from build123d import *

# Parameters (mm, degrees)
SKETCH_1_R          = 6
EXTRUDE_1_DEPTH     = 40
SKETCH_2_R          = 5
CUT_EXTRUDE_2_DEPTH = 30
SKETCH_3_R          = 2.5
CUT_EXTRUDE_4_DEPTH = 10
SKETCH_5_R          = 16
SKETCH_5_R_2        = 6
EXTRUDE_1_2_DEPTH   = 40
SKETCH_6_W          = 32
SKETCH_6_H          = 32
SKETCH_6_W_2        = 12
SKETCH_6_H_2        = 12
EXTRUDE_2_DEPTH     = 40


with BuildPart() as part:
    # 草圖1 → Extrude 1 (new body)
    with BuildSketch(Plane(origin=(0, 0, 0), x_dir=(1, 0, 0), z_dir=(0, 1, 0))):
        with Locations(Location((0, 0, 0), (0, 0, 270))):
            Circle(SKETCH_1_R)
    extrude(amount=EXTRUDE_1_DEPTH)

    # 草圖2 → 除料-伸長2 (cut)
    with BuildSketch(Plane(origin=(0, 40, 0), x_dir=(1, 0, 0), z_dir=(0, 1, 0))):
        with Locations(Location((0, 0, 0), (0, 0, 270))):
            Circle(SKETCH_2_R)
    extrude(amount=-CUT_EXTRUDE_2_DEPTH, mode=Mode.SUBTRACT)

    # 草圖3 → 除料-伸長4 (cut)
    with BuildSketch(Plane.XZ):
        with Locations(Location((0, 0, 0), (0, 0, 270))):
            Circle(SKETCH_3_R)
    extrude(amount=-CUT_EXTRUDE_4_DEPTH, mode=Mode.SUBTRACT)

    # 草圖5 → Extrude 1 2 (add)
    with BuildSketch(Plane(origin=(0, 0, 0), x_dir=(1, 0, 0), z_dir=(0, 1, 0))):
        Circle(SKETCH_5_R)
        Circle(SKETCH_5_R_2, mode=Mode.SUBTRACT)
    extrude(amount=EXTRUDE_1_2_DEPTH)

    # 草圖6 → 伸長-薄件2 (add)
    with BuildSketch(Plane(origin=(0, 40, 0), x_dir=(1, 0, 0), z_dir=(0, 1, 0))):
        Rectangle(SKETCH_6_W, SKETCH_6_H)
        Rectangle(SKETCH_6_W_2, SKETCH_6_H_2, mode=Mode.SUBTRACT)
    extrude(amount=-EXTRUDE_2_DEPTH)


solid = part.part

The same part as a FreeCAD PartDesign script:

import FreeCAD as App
import Part
import Sketcher

V = App.Vector


def add_polygon(sketch, points):
    """Adds a closed chain of lines whose ends are joined by coincident constraints."""
    first, n = sketch.GeometryCount, len(points)
    for a, b in zip(points, points[1:] + points[:1]):
        sketch.addGeometry(Part.LineSegment(App.Vector(*a, 0), App.Vector(*b, 0)), False)
    for i in range(n):
        sketch.addConstraint(Sketcher.Constraint("Coincident", first + i, 2, first + (i + 1) % n, 1))

doc = App.newDocument("Part")
params = doc.addObject("Spreadsheet::Sheet", "Params")
for row, (alias, value) in enumerate([
    ("sketch1_diameter", "12 mm"),
    ("pad1_length", "40 mm"),
    ("sketch2_diameter", "10 mm"),
    ("pocket1_length", "30 mm"),
    ("sketch3_diameter", "5 mm"),
    ("pocket2_length", "10 mm"),
    ("sketch4_diameter", "32 mm"),
    ("sketch4_diameter2", "12 mm"),
    ("pad2_length", "40 mm"),
    ("sketch5_width", "32 mm"),
    ("sketch5_width2", "12 mm"),
    ("pad3_length", "40 mm"),
], start=1):
    params.set(f"A{row}", alias)
    params.set(f"B{row}", "=" + value)
    params.setAlias(f"B{row}", alias)

body = doc.addObject("PartDesign::Body", "Body")

# Sketch on XZ plane
sketch1 = doc.addObject("Sketcher::SketchObject", "Sketch")
body.addObject(sketch1)
sketch1.AttachmentSupport = (doc.XZ_Plane, [""])
sketch1.MapMode = "FlatFace"
sketch1.addGeometry(Part.Circle(V(0, 0, 0), V(0, 0, 1), 6), False)
sketch1.addConstraint([
    Sketcher.Constraint("Coincident", 0, 3, -1, 1),
    Sketcher.Constraint("Diameter", 0, 12.0),
])
sketch1.setExpression("Constraints[1]", "Params.sketch1_diameter")
pad1 = doc.addObject("PartDesign::Pad", "Pad")
body.addObject(pad1)
pad1.Profile = sketch1
pad1.setExpression("Length", "Params.pad1_length")
pad1.Reversed = True

# Sketch on XZ plane
sketch2 = doc.addObject("Sketcher::SketchObject", "Sketch001")
body.addObject(sketch2)
sketch2.AttachmentSupport = (doc.XZ_Plane, [""])
sketch2.MapMode = "FlatFace"
sketch2.AttachmentOffset = App.Placement(V(0, 0, -40), App.Rotation())
sketch2.addGeometry(Part.Circle(V(0, 0, 0), V(0, 0, 1), 5), False)
sketch2.addConstraint([
    Sketcher.Constraint("Coincident", 0, 3, -1, 1),
    Sketcher.Constraint("Diameter", 0, 10.0),
])
sketch2.setExpression("Constraints[1]", "Params.sketch2_diameter")
pocket1 = doc.addObject("PartDesign::Pocket", "Pocket")
body.addObject(pocket1)
pocket1.Profile = sketch2
pocket1.setExpression("Length", "Params.pocket1_length")
pocket1.Reversed = True

# Sketch on XZ plane
sketch3 = doc.addObject("Sketcher::SketchObject", "Sketch002")
body.addObject(sketch3)
sketch3.AttachmentSupport = (doc.XZ_Plane, [""])
sketch3.MapMode = "FlatFace"
sketch3.addGeometry(Part.Circle(V(0, 0, 0), V(0, 0, 1), 2.5), False)
sketch3.addConstraint([
    Sketcher.Constraint("Coincident", 0, 3, -1, 1),
    Sketcher.Constraint("Diameter", 0, 5.0),
])
sketch3.setExpression("Constraints[1]", "Params.sketch3_diameter")
pocket2 = doc.addObject("PartDesign::Pocket", "Pocket001")
body.addObject(pocket2)
pocket2.Profile = sketch3
pocket2.setExpression("Length", "Params.pocket2_length")

# Sketch on XZ plane
sketch4 = doc.addObject("Sketcher::SketchObject", "Sketch003")
body.addObject(sketch4)
sketch4.AttachmentSupport = (doc.XZ_Plane, [""])
sketch4.MapMode = "FlatFace"
sketch4.addGeometry([
    Part.Circle(V(0, 0, 0), V(0, 0, 1), 16),
    Part.Circle(V(0, 0, 0), V(0, 0, 1), 6),
], False)
sketch4.addConstraint([
    Sketcher.Constraint("Coincident", 0, 3, -1, 1),
    Sketcher.Constraint("Coincident", 1, 3, -1, 1),
    Sketcher.Constraint("Diameter", 0, 32.0),
    Sketcher.Constraint("Diameter", 1, 12.0),
])
sketch4.setExpression("Constraints[2]", "Params.sketch4_diameter")
sketch4.setExpression("Constraints[3]", "Params.sketch4_diameter2")
pad2 = doc.addObject("PartDesign::Pad", "Pad001")
body.addObject(pad2)
pad2.Profile = sketch4
pad2.setExpression("Length", "Params.pad2_length")
pad2.Reversed = True

# Sketch on XZ plane
sketch5 = doc.addObject("Sketcher::SketchObject", "Sketch004")
body.addObject(sketch5)
sketch5.AttachmentSupport = (doc.XZ_Plane, [""])
sketch5.MapMode = "FlatFace"
sketch5.AttachmentOffset = App.Placement(V(0, 0, -40), App.Rotation())
add_polygon(sketch5, [(-16, -16), (-16, 16), (16, 16), (16, -16)])  # lines 0-3
add_polygon(sketch5, [(6, 6), (-6, 6), (-6, -6), (6, -6)])  # lines 4-7
sketch5.addConstraint([
    Sketcher.Constraint("Vertical", 0),
    Sketcher.Constraint("Horizontal", 1),
    Sketcher.Constraint("Vertical", 2),
    Sketcher.Constraint("Horizontal", 3),
    Sketcher.Constraint("Horizontal", 4),
    Sketcher.Constraint("Vertical", 5),
    Sketcher.Constraint("Horizontal", 6),
    Sketcher.Constraint("Vertical", 7),
    Sketcher.Constraint("Symmetric", 0, 2, 2, 2, -1, 1),
    Sketcher.Constraint("Symmetric", 4, 2, 6, 2, -1, 1),
    Sketcher.Constraint("Equal", 3, 0),
    Sketcher.Constraint("Equal", 6, 5),
    Sketcher.Constraint("DistanceX", 1, 1, 1, 2, 32.0),
    Sketcher.Constraint("DistanceX", 4, 2, 4, 1, 12.0),
])
sketch5.setExpression("Constraints[20]", "Params.sketch5_width")
sketch5.setExpression("Constraints[21]", "Params.sketch5_width2")
pad3 = doc.addObject("PartDesign::Pad", "Pad002")
body.addObject(pad3)
pad3.Profile = sketch5
pad3.setExpression("Length", "Params.pad3_length")

doc.recompute()
